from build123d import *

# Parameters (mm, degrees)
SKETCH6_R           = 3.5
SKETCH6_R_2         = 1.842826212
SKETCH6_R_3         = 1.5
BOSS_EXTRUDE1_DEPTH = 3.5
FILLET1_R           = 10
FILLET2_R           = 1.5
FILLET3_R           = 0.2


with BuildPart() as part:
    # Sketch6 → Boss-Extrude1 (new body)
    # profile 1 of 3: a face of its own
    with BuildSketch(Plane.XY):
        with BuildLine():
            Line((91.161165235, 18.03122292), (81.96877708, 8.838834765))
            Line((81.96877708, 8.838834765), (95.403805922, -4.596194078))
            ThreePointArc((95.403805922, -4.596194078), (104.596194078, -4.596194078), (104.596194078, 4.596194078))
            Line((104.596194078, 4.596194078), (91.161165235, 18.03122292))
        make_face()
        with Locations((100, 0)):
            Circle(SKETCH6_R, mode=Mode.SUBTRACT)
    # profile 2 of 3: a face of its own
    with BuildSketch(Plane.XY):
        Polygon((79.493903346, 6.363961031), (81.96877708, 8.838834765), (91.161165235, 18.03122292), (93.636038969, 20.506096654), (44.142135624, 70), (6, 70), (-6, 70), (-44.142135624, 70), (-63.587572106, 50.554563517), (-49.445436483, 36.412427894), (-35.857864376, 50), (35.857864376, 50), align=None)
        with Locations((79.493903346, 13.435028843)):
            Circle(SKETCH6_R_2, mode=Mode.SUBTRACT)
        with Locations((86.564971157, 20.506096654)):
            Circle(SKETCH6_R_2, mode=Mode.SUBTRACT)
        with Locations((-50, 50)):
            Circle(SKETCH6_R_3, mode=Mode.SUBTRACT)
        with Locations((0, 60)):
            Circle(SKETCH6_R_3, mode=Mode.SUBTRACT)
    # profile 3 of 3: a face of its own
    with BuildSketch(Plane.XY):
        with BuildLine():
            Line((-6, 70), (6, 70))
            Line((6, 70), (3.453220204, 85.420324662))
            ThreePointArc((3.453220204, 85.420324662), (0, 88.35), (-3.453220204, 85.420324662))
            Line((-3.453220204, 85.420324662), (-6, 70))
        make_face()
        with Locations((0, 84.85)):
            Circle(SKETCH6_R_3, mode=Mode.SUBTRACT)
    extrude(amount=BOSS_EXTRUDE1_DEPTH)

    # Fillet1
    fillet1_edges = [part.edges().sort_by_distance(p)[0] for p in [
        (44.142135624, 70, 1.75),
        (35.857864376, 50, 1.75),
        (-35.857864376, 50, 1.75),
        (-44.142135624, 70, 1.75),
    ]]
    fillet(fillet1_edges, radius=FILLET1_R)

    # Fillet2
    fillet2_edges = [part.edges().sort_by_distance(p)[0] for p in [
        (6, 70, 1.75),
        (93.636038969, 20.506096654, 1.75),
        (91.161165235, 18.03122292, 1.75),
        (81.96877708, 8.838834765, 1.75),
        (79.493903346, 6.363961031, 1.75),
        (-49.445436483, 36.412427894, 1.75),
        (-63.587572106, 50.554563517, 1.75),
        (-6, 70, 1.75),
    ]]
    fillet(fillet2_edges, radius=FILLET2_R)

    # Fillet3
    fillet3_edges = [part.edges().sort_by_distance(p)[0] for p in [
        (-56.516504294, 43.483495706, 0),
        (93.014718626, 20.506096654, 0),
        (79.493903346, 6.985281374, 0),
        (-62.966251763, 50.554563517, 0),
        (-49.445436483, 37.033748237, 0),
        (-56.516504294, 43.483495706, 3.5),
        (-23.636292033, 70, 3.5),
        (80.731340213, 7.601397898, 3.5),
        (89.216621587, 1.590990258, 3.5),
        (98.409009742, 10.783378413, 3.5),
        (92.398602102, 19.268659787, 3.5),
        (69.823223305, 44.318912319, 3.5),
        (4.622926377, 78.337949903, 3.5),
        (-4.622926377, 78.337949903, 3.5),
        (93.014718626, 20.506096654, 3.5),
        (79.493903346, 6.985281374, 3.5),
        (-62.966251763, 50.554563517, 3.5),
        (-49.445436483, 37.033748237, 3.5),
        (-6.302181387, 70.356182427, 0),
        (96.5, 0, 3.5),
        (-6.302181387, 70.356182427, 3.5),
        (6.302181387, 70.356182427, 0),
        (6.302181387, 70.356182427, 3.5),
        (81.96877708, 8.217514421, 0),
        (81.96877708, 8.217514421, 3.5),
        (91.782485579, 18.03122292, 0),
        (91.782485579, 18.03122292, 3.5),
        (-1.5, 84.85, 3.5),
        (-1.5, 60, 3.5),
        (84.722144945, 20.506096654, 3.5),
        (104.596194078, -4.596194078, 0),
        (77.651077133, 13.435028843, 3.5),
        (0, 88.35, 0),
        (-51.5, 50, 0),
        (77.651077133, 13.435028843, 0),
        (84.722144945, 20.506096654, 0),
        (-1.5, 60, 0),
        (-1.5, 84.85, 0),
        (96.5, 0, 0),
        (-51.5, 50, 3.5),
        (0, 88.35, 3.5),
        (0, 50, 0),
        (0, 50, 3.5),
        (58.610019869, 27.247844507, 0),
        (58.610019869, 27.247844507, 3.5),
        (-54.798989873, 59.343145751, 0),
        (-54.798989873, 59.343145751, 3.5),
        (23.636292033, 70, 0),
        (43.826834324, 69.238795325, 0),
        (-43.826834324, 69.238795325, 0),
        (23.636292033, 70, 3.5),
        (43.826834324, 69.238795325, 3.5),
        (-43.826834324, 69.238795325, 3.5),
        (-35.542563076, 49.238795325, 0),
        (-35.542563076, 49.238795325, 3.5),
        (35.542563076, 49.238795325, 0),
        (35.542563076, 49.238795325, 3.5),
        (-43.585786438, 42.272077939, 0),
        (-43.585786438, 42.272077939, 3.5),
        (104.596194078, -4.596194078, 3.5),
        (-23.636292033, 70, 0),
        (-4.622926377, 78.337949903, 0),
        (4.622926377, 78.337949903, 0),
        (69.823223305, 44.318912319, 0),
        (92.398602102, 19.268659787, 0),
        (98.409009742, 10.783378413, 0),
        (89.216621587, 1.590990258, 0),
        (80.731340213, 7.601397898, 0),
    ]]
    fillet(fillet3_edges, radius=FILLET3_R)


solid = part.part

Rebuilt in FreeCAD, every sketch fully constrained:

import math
import FreeCAD as App
import Part
import Sketcher

V = App.Vector
Q = App.Units.Quantity


def edges_at(feature, points):
    """Names of the edges that pass closest to the given points."""
    edges = feature.Shape.Edges
    near = lambda p: min(range(len(edges)), key=lambda i: edges[i].distToShape(Part.Vertex(*p))[0])
    return sorted({f"Edge{near(p) + 1}" for p in points})

doc = App.newDocument("Part")
body = doc.addObject("PartDesign::Body", "Body")

# Sketch on XY plane
sketch1 = body.newObject("Sketcher::SketchObject", "Sketch")
sketch1.AttachmentSupport = (doc.getObject("XY_Plane"), [""])
sketch1.MapMode = "FlatFace"
sketch1.addGeometry([
    Part.LineSegment(V(104.6, 4.6, 0), V(91.2, 18, 0)),  # 0
    Part.LineSegment(V(91.2, 18, 0), V(93.6, 20.5, 0)),  # 1
    Part.LineSegment(V(93.6, 20.5, 0), V(44.1, 70, 0)),  # 2
    Part.LineSegment(V(44.1, 70, 0), V(6, 70, 0)),  # 3
    Part.LineSegment(V(6, 70, 0), V(3.5, 85.4, 0)),  # 4
    Part.ArcOfCircle(Part.Circle(V(0, 84.8, 0), V(0, 0, 1), 3.5), math.radians(9), math.radians(171)),  # 5
    Part.LineSegment(V(-3.5, 85.4, 0), V(-6, 70, 0)),  # 6
    Part.LineSegment(V(-6, 70, 0), V(-44.1, 70, 0)),  # 7
    Part.LineSegment(V(-44.1, 70, 0), V(-63.6, 50.6, 0)),  # 8
    Part.LineSegment(V(-63.6, 50.6, 0), V(-49.4, 36.4, 0)),  # 9
    Part.LineSegment(V(-49.4, 36.4, 0), V(-35.9, 50, 0)),  # 10
    Part.LineSegment(V(-35.9, 50, 0), V(35.9, 50, 0)),  # 11
    Part.LineSegment(V(35.9, 50, 0), V(79.5, 6.4, 0)),  # 12
    Part.LineSegment(V(79.5, 6.4, 0), V(82, 8.8, 0)),  # 13
    Part.LineSegment(V(82, 8.8, 0), V(95.4, -4.6, 0)),  # 14
    Part.ArcOfCircle(Part.Circle(V(100, 0, 0), V(0, 0, 1), 6.5), math.radians(-135), math.radians(45)),  # 15
    Part.Circle(V(100, 0, 0), V(0, 0, 1), 3.5),  # 16
    Part.Circle(V(0, 60, 0), V(0, 0, 1), 1.5),  # 17
    Part.Circle(V(79.5, 13.4, 0), V(0, 0, 1), 1.8),  # 18
    Part.Circle(V(86.6, 20.5, 0), V(0, 0, 1), 1.8),  # 19
    Part.Circle(V(-50, 50, 0), V(0, 0, 1), 1.5),  # 20
    Part.Circle(V(0, 84.8, 0), V(0, 0, 1), 1.5),  # 21
], False)
sketch1.addConstraint([
    Sketcher.Constraint("Coincident", 0, 2, 1, 1),
    Sketcher.Constraint("Coincident", 1, 2, 2, 1),
    Sketcher.Constraint("Coincident", 2, 2, 3, 1),
    Sketcher.Constraint("Coincident", 3, 2, 4, 1),
    Sketcher.Constraint("Tangent", 4, 2, 5, 1),
    Sketcher.Constraint("Tangent", 5, 2, 6, 1),
    Sketcher.Constraint("Coincident", 6, 2, 7, 1),
    Sketcher.Constraint("Coincident", 7, 2, 8, 1),
    Sketcher.Constraint("Coincident", 8, 2, 9, 1),
    Sketcher.Constraint("Coincident", 9, 2, 10, 1),
    Sketcher.Constraint("Coincident", 10, 2, 11, 1),
    Sketcher.Constraint("Coincident", 11, 2, 12, 1),
    Sketcher.Constraint("Coincident", 12, 2, 13, 1),
    Sketcher.Constraint("Coincident", 13, 2, 14, 1),
    Sketcher.Constraint("Tangent", 14, 2, 15, 1),
    Sketcher.Constraint("Tangent", 15, 2, 0, 1),
    Sketcher.Constraint("Horizontal", 3),
    Sketcher.Constraint("Horizontal", 7),
    Sketcher.Constraint("Horizontal", 11),
    Sketcher.Constraint("Coincident", 16, 3, 15, 3),
    Sketcher.Constraint("Coincident", 21, 3, 5, 3),
    Sketcher.Constraint("Equal", 5, 16),
    Sketcher.Constraint("Equal", 18, 19),
    Sketcher.Constraint("Equal", 17, 20),
    Sketcher.Constraint("Equal", 20, 21),
    Sketcher.Constraint("Symmetric", 4, 2, 5, 2, -2),
    Sketcher.Constraint("Symmetric", 2, 2, 7, 2, -2),
    Sketcher.Constraint("PointOnObject", 15, 3, -1),
    Sketcher.Constraint("PointOnObject", 17, 3, -2),
    Sketcher.Constraint("Perpendicular", 0, 1),
    Sketcher.Constraint("Perpendicular", 1, 2),
    Sketcher.Constraint("Perpendicular", 2, 8),
    Sketcher.Constraint("Perpendicular", 8, 9),
    Sketcher.Constraint("Perpendicular", 9, 10),
    Sketcher.Constraint("Perpendicular", 10, 12),
    Sketcher.Constraint("Perpendicular", 12, 13),
    Sketcher.Constraint("Perpendicular", 13, 14),
    Sketcher.Constraint("Horizontal", 19, 3, 1, 2),
    Sketcher.Constraint("Horizontal", 20, 3, 10, 2),
    Sketcher.Constraint("Vertical", 18, 3, 12, 2),
    Sketcher.Constraint("Equal", 1, 13),
    Sketcher.Constraint("Equal", 0, 14),
    Sketcher.Constraint("Diameter", 16, 7.0),
    Sketcher.Constraint("Diameter", 17, 3.0),
    Sketcher.Constraint("Radius", 15, 6.5),
    Sketcher.Constraint("Angle", 0, Q("135 deg")),
    Sketcher.Constraint("Distance", 0, 19.0),
    Sketcher.Constraint("Distance", 9, 20.0),
    Sketcher.Constraint("DistanceX", -1, 1, 15, 3, 100.0),
    Sketcher.Constraint("DistanceY", -1, 1, 17, 3, 60.0),
    Sketcher.Constraint("DistanceX", 20, 3, -1, 1, 50.0),
    Sketcher.Constraint("DistanceY", -1, 1, 20, 3, 50.0),
    Sketcher.Constraint("DistanceY", -1, 1, 2, 2, 70.0),
    Sketcher.Constraint("DistanceX", -1, 1, 3, 2, 6.0),
    Sketcher.Constraint("Distance", 1, 3.5),
    Sketcher.Constraint("Distance", 8, 27.5),
    Sketcher.Constraint("DistanceY", -1, 1, 5, 3, 84.85),
    Sketcher.Constraint("Diameter", 18, 3.685652),
    Sketcher.Constraint("DistanceY", -1, 1, 18, 3, 13.435029),
    Sketcher.Constraint("DistanceX", -1, 1, 19, 3, 86.564971),
])
pad1 = body.newObject("PartDesign::Pad", "Pad")
pad1.Profile = sketch1
pad1.Length = 3.5
doc.recompute()

fillet = body.newObject("PartDesign::Fillet", "Fillet")
fillet.Base = (pad1, edges_at(pad1, [
    (44.142, 70, 1.75),
    (35.858, 50, 1.75),
    (-35.858, 50, 1.75),
    (-44.142, 70, 1.75),
]))
fillet.Radius = 10
doc.recompute()

fillet2 = body.newObject("PartDesign::Fillet", "Fillet001")
fillet2.Base = (fillet, edges_at(fillet, [
    (6, 70, 1.75),
    (93.636, 20.506, 1.75),
    (91.161, 18.031, 1.75),
    (81.969, 8.839, 1.75),
    (79.494, 6.364, 1.75),
    (-49.445, 36.412, 1.75),
    (-63.588, 50.555, 1.75),
    (-6, 70, 1.75),
]))
fillet2.Radius = 1.5
doc.recompute()

fillet3 = body.newObject("PartDesign::Fillet", "Fillet002")
fillet3.Base = (fillet2, edges_at(fillet2, [
    (-56.517, 43.483, 0),
    (93.015, 20.506, 0),
    (79.494, 6.985, 0),
    (-62.966, 50.555, 0),
    (-49.445, 37.034, 0),
    (-56.517, 43.483, 3.5),
    (-23.636, 70, 3.5),
    (80.731, 7.601, 3.5),
    (89.217, 1.591, 3.5),
    (98.409, 10.783, 3.5),
    (92.399, 19.269, 3.5),
    (69.823, 44.319, 3.5),
    (4.623, 78.338, 3.5),
    (-4.623, 78.338, 3.5),
    (93.015, 20.506, 3.5),
    (79.494, 6.985, 3.5),
    (-62.966, 50.555, 3.5),
    (-49.445, 37.034, 3.5),
    (-6.302, 70.356, 0),
    (96.5, 0, 3.5),
    (-6.302, 70.356, 3.5),
    (6.302, 70.356, 0),
    (6.302, 70.356, 3.5),
    (81.969, 8.218, 0),
    (81.969, 8.218, 3.5),
    (91.782, 18.031, 0),
    (91.782, 18.031, 3.5),
    (-1.5, 84.85, 3.5),
    (-1.5, 60, 3.5),
    (84.722, 20.506, 3.5),
    (104.596, -4.596, 0),
    (77.651, 13.435, 3.5),
    (0, 88.35, 0),
    (-51.5, 50, 0),
    (77.651, 13.435, 0),
    (84.722, 20.506, 0),
    (-1.5, 60, 0),
    (-1.5, 84.85, 0),
    (96.5, 0, 0),
    (-51.5, 50, 3.5),
    (0, 88.35, 3.5),
    (0, 50, 0),
    (0, 50, 3.5),
    (58.61, 27.248, 0),
    (58.61, 27.248, 3.5),
    (-54.799, 59.343, 0),
    (-54.799, 59.343, 3.5),
    (23.636, 70, 0),
    (43.827, 69.239, 0),
    (-43.827, 69.239, 0),
    (23.636, 70, 3.5),
    (43.827, 69.239, 3.5),
    (-43.827, 69.239, 3.5),
    (-35.543, 49.239, 0),
    (-35.543, 49.239, 3.5),
    (35.543, 49.239, 0),
    (35.543, 49.239, 3.5),
    (-43.586, 42.272, 0),
    (-43.586, 42.272, 3.5),
    (104.596, -4.596, 3.5),
    (-23.636, 70, 0),
    (-4.623, 78.338, 0),
    (4.623, 78.338, 0),
    (69.823, 44.319, 0),
    (92.399, 19.269, 0),
    (98.409, 10.783, 0),
    (89.217, 1.591, 0),
    (80.731, 7.601, 0),
]))
fillet3.Radius = 0.2

doc.recompute()
